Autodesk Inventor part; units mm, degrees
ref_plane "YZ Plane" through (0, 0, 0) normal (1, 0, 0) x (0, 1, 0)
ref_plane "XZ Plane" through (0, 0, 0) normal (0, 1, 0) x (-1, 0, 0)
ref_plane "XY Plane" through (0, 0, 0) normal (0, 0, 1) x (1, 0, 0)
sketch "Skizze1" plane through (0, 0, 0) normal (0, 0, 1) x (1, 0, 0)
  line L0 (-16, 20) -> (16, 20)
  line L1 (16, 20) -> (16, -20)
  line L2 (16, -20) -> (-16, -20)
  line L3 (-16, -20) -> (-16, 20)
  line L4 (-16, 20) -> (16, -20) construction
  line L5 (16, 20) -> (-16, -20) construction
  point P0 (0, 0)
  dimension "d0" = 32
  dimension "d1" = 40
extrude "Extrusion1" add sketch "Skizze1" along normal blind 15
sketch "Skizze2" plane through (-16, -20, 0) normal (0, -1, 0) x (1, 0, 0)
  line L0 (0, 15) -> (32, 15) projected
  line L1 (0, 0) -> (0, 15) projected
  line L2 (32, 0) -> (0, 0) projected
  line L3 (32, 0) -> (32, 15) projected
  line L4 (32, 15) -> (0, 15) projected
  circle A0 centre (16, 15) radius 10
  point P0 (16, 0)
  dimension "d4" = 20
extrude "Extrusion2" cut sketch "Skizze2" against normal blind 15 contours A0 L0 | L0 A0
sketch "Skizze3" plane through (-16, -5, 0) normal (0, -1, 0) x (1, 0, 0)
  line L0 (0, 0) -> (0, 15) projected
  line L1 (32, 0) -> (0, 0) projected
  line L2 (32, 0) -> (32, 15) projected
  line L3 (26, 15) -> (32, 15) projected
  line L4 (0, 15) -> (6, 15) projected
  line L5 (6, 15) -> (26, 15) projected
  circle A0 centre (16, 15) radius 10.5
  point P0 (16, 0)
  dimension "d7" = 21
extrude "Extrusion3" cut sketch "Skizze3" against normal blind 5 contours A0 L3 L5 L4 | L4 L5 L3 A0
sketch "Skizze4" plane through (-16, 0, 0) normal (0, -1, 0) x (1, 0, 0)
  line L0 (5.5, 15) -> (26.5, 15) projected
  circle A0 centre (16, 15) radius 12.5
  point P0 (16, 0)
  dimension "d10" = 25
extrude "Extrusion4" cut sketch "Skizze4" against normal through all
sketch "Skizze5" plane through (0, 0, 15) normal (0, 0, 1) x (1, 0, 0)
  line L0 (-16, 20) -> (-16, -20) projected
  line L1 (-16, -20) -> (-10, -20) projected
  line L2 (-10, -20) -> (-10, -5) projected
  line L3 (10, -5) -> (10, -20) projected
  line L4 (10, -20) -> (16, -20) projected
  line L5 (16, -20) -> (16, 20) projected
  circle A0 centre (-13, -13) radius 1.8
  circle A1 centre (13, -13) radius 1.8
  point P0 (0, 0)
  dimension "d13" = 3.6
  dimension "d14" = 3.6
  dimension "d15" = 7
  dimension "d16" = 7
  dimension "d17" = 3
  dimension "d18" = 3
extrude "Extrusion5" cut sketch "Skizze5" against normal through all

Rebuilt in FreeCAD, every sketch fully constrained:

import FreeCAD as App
import Part
import Sketcher

V = App.Vector

doc = App.newDocument("Part")
params = doc.addObject("Spreadsheet::Sheet", "Params")
for row, (alias, value) in enumerate([
    ("sketch1_width", "32 mm"),
    ("sketch1_height", "40 mm"),
    ("pad1_length", "15 mm"),
    ("sketch2_diameter", "20 mm"),
    ("pocket1_length", "15 mm"),
    ("sketch3_diameter", "21 mm"),
    ("pocket2_length", "5 mm"),
    ("sketch4_diameter", "25 mm"),
    ("sketch5_diameter", "3.6 mm"),
], start=1):
    params.set(f"A{row}", alias)
    params.set(f"B{row}", "=" + value)
    params.setAlias(f"B{row}", alias)

body = doc.addObject("PartDesign::Body", "Body")

sketch1 = body.newObject("Sketcher::SketchObject", "Sketch")
sketch1.AttachmentSupport = (doc.getObject("XY_Plane"), [""])
sketch1.MapMode = "FlatFace"
sketch1.addGeometry([
    Part.LineSegment(V(16, 20, 0), V(-16, 20, 0)),
    Part.LineSegment(V(-16, 20, 0), V(-16, -20, 0)),
    Part.LineSegment(V(-16, -20, 0), V(16, -20, 0)),
    Part.LineSegment(V(16, -20, 0), V(16, 20, 0)),
], False)
sketch1.addConstraint([
    Sketcher.Constraint("Coincident", 0, 2, 1, 1),
    Sketcher.Constraint("Coincident", 1, 2, 2, 1),
    Sketcher.Constraint("Coincident", 2, 2, 3, 1),
    Sketcher.Constraint("Coincident", 3, 2, 0, 1),
    Sketcher.Constraint("Horizontal", 0),
    Sketcher.Constraint("Vertical", 1),
    Sketcher.Constraint("Horizontal", 2),
    Sketcher.Constraint("Vertical", 3),
    Sketcher.Constraint("Symmetric", 0, 2, 2, 2, -1, 1),
    Sketcher.Constraint("DistanceX", 0, 2, 0, 1, 32.0),
    Sketcher.Constraint("DistanceY", 1, 2, 1, 1, 40.0),
])
sketch1.setExpression("Constraints[9]", "Params.sketch1_width")
sketch1.setExpression("Constraints[10]", "Params.sketch1_height")
pad1 = body.newObject("PartDesign::Pad", "Pad")
pad1.Profile = sketch1
pad1.setExpression("Length", "Params.pad1_length")

sketch2 = body.newObject("Sketcher::SketchObject", "Sketch001")
sketch2.AttachmentSupport = (doc.getObject("XZ_Plane"), [""])
sketch2.MapMode = "FlatFace"
sketch2.AttachmentOffset = App.Placement(V(0, 0, 20), App.Rotation())
sketch2.addGeometry(Part.Circle(V(0, 15, 0), V(0, 0, 1), 10), False)
sketch2.addConstraint([
    Sketcher.Constraint("PointOnObject", 0, 3, -2),
    Sketcher.Constraint("Diameter", 0, 20.0),
    Sketcher.Constraint("DistanceY", -1, 1, 0, 3, 15.0),
])
sketch2.setExpression("Constraints[1]", "Params.sketch2_diameter")
pocket1 = body.newObject("PartDesign::Pocket", "Pocket")
pocket1.Profile = sketch2
pocket1.setExpression("Length", "Params.pocket1_length")

sketch3 = body.newObject("Sketcher::SketchObject", "Sketch002")
sketch3.AttachmentSupport = (doc.getObject("XZ_Plane"), [""])
sketch3.MapMode = "FlatFace"
sketch3.AttachmentOffset = App.Placement(V(0, 0, 5), App.Rotation())
sketch3.addGeometry(Part.Circle(V(0, 15, 0), V(0, 0, 1), 10), False)
sketch3.addConstraint([
    Sketcher.Constraint("PointOnObject", 0, 3, -2),
    Sketcher.Constraint("Diameter", 0, 21.0),
    Sketcher.Constraint("DistanceY", -1, 1, 0, 3, 15.0),
])
sketch3.setExpression("Constraints[1]", "Params.sketch3_diameter")
pocket2 = body.newObject("PartDesign::Pocket", "Pocket001")
pocket2.Profile = sketch3
pocket2.setExpression("Length", "Params.pocket2_length")

sketch4 = body.newObject("Sketcher::SketchObject", "Sketch003")
sketch4.AttachmentSupport = (doc.getObject("XZ_Plane"), [""])
sketch4.MapMode = "FlatFace"
sketch4.addGeometry(Part.Circle(V(0, 15, 0), V(0, 0, 1), 12), False)
sketch4.addConstraint([
    Sketcher.Constraint("PointOnObject", 0, 3, -2),
    Sketcher.Constraint("Diameter", 0, 25.0),
    Sketcher.Constraint("DistanceY", -1, 1, 0, 3, 15.0),
])
sketch4.setExpression("Constraints[1]", "Params.sketch4_diameter")
pocket3 = body.newObject("PartDesign::Pocket", "Pocket002")
pocket3.Profile = sketch4
pocket3.Type = "ThroughAll"

sketch5 = body.newObject("Sketcher::SketchObject", "Sketch004")
sketch5.AttachmentSupport = (doc.getObject("XY_Plane"), [""])
sketch5.MapMode = "FlatFace"
sketch5.AttachmentOffset = App.Placement(V(0, 0, 15), App.Rotation())
sketch5.addGeometry([
    Part.Circle(V(-13, -13, 0), V(0, 0, 1), 1.8),
    Part.Circle(V(13, -13, 0), V(0, 0, 1), 1.8),
], False)
sketch5.addConstraint([
    Sketcher.Constraint("Equal", 0, 1),
    Sketcher.Constraint("Symmetric", 0, 3, 1, 3, -2),
    Sketcher.Constraint("Diameter", 0, 3.6),
    Sketcher.Constraint("DistanceX", 0, 3, -1, 1, 13.0),
    Sketcher.Constraint("DistanceY", 0, 3, -1, 1, 13.0),
])
sketch5.setExpression("Constraints[2]", "Params.sketch5_diameter")
pocket4 = body.newObject("PartDesign::Pocket", "Pocket003")
pocket4.Profile = sketch5
pocket4.Type = "ThroughAll"

doc.recompute()
